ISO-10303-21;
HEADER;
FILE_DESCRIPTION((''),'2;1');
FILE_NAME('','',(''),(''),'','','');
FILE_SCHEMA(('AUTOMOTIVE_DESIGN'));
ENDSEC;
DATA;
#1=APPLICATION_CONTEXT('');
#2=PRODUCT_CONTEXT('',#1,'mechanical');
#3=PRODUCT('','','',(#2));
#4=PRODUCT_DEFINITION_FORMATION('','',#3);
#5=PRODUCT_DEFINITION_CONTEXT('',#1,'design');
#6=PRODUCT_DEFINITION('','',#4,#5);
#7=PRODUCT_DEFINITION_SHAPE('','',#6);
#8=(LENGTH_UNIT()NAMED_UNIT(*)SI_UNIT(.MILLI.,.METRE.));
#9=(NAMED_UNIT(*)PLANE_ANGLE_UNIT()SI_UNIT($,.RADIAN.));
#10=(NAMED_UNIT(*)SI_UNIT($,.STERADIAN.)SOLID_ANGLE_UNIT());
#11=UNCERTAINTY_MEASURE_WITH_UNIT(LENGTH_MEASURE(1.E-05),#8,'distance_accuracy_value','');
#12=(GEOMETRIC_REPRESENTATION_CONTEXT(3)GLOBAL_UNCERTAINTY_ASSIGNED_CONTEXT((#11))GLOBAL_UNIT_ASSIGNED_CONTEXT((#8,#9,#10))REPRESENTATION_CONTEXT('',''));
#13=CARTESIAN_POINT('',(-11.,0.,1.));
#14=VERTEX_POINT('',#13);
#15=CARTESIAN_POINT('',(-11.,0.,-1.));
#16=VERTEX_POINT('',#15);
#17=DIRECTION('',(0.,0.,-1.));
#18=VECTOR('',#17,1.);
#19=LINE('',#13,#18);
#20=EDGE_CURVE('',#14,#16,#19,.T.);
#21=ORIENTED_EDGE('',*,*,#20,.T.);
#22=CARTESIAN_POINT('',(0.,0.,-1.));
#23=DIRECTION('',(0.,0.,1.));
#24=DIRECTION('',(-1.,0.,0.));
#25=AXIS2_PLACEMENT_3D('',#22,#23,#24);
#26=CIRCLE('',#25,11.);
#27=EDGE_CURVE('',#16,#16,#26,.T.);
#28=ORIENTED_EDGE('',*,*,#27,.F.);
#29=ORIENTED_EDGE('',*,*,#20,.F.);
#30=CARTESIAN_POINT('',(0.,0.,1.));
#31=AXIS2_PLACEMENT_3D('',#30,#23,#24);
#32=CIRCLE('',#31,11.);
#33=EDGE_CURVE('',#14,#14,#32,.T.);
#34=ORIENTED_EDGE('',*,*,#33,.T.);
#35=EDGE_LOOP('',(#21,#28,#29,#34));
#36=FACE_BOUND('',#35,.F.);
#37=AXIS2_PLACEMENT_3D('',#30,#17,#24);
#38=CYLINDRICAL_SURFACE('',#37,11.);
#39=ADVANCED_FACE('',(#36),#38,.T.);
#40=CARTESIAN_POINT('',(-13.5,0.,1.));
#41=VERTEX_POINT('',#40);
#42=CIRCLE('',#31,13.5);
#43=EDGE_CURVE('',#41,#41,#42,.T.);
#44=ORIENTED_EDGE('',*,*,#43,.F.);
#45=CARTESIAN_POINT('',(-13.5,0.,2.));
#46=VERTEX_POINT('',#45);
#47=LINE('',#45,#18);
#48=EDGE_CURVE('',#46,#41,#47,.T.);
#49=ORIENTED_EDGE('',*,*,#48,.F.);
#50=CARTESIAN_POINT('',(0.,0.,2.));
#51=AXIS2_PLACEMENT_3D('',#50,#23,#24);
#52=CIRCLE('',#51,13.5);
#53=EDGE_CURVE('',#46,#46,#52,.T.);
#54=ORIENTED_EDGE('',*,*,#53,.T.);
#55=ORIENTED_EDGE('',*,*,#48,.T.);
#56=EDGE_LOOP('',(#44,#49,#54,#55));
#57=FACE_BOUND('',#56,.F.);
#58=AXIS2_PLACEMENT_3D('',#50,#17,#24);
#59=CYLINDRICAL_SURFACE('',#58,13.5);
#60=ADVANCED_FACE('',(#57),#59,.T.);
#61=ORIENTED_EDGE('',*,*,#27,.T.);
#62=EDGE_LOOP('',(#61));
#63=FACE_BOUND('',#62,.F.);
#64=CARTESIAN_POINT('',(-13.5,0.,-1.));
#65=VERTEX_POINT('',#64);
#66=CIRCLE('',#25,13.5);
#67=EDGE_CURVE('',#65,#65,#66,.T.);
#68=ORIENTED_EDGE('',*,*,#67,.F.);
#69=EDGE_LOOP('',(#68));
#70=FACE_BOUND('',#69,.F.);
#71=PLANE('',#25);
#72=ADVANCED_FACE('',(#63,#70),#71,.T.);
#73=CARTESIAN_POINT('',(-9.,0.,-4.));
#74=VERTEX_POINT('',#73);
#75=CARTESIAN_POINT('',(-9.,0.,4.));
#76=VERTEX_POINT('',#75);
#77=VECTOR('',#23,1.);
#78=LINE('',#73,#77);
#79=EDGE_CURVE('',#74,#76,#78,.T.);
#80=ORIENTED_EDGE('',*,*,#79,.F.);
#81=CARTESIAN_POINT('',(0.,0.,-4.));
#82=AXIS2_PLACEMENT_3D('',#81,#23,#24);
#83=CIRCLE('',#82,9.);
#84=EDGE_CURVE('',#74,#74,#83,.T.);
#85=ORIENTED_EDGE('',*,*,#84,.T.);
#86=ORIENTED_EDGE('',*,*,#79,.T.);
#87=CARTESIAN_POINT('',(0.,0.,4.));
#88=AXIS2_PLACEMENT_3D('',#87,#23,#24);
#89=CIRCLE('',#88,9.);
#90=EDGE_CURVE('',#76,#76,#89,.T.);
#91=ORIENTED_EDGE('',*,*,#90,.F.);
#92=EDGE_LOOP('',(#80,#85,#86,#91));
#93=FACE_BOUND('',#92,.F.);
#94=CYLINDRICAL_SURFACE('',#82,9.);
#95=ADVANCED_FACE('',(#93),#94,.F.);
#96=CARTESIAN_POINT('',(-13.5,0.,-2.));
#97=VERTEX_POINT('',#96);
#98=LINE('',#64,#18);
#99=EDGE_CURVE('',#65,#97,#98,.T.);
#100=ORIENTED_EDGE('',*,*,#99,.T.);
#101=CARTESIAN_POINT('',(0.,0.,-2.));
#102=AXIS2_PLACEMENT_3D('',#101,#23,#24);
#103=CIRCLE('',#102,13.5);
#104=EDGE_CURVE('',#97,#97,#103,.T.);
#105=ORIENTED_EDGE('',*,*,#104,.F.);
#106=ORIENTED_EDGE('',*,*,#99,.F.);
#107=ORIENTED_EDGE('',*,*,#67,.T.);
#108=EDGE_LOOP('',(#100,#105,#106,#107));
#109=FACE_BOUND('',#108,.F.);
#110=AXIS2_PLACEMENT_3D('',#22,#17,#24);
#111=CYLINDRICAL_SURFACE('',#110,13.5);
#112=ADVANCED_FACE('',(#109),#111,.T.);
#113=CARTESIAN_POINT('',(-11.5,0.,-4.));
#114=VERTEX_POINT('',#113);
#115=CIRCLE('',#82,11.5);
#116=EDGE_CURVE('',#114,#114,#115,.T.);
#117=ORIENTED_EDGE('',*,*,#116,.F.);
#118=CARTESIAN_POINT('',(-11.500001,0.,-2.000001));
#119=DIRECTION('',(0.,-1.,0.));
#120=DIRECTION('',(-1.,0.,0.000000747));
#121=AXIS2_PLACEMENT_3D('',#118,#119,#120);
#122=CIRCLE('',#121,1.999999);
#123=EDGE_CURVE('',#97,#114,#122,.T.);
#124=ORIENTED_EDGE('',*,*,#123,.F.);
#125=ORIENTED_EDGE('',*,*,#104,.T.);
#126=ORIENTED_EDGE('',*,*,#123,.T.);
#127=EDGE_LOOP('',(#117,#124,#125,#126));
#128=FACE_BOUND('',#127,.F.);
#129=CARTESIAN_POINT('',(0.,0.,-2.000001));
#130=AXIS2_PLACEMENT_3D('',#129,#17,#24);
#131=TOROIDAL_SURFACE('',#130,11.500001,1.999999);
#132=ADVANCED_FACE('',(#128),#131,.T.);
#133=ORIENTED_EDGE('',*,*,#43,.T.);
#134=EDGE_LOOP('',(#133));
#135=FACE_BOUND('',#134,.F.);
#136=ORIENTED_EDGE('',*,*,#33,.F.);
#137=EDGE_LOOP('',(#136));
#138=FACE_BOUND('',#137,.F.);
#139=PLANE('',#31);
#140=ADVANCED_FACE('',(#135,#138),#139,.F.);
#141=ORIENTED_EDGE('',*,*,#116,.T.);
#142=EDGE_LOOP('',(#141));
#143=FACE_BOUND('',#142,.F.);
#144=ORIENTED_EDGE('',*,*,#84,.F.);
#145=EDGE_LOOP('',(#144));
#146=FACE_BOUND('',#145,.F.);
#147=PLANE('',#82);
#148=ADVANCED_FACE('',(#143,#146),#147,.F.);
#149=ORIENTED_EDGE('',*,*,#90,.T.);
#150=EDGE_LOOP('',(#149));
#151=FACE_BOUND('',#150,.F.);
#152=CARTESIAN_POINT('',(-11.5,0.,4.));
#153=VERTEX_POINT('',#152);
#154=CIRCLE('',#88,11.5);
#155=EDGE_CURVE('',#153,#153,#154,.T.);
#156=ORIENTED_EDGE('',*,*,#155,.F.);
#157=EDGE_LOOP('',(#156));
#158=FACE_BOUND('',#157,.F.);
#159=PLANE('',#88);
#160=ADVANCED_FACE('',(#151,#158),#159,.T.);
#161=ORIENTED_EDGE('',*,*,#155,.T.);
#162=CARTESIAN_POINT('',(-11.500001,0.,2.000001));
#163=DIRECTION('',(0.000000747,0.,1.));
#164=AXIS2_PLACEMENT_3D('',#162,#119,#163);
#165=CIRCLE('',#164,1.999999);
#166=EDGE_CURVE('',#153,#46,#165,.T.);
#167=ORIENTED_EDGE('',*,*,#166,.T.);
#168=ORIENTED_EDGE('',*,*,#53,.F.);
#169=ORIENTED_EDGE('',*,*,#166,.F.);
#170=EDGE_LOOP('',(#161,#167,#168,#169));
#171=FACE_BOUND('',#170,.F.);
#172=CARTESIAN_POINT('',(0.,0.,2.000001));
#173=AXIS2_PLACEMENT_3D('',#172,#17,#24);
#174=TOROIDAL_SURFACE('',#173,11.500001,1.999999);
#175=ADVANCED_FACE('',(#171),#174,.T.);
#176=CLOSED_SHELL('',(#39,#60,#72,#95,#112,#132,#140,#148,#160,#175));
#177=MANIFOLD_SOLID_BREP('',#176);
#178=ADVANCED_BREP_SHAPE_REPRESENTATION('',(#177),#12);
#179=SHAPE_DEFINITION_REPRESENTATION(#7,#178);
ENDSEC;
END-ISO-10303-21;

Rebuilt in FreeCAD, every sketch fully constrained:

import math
import FreeCAD as App
import Part
import Sketcher
from FreeCAD import Vector

doc = App.newDocument("Part")
body = doc.addObject("PartDesign::Body", "Body")

# Sketch on XZ plane
sketch1 = body.newObject("Sketcher::SketchObject", "Sketch")
sketch1.AttachmentSupport = (doc.getObject("XZ_Plane"), [""])
sketch1.MapMode = "FlatFace"
sketch1.addGeometry(Part.LineSegment(Vector(-9, -4, 0), Vector(-9, 4, 0)), False)
sketch1.addGeometry(Part.LineSegment(Vector(-9, 4, 0), Vector(-11.5, 4, 0)), False)
sketch1.addGeometry(Part.ArcOfCircle(Part.Circle(Vector(-11.500001, 2.000001, 0), Vector(0, 0, 1), 1.999999), math.radians(89.999957), math.radians(180.000043)), False)
sketch1.addGeometry(Part.LineSegment(Vector(-13.5, 2, 0), Vector(-13.5, 1, 0)), False)
sketch1.addGeometry(Part.LineSegment(Vector(-13.5, 1, 0), Vector(-11, 1, 0)), False)
sketch1.addGeometry(Part.LineSegment(Vector(-11, 1, 0), Vector(-11, -1, 0)), False)
sketch1.addGeometry(Part.LineSegment(Vector(-11, -1, 0), Vector(-13.5, -1, 0)), False)
sketch1.addGeometry(Part.LineSegment(Vector(-13.5, -1, 0), Vector(-13.5, -2, 0)), False)
sketch1.addGeometry(Part.ArcOfCircle(Part.Circle(Vector(-11.500001, -2.000001, 0), Vector(0, 0, 1), 1.999999), math.radians(179.999957), math.radians(270.000043)), False)
sketch1.addGeometry(Part.LineSegment(Vector(-11.5, -4, 0), Vector(-9, -4, 0)), False)
sketch1.addConstraint(Sketcher.Constraint("Coincident", 0, 2, 1, 1))
sketch1.addConstraint(Sketcher.Constraint("Tangent", 1, 2, 2, 1))
sketch1.addConstraint(Sketcher.Constraint("Tangent", 2, 2, 3, 1))
sketch1.addConstraint(Sketcher.Constraint("Coincident", 3, 2, 4, 1))
sketch1.addConstraint(Sketcher.Constraint("Coincident", 4, 2, 5, 1))
sketch1.addConstraint(Sketcher.Constraint("Coincident", 5, 2, 6, 1))
sketch1.addConstraint(Sketcher.Constraint("Coincident", 6, 2, 7, 1))
sketch1.addConstraint(Sketcher.Constraint("Tangent", 7, 2, 8, 1))
sketch1.addConstraint(Sketcher.Constraint("Tangent", 8, 2, 9, 1))
sketch1.addConstraint(Sketcher.Constraint("Coincident", 9, 2, 0, 1))
sketch1.addConstraint(Sketcher.Constraint("Vertical", 0))
sketch1.addConstraint(Sketcher.Constraint("Horizontal", 1))
sketch1.addConstraint(Sketcher.Constraint("Vertical", 3))
sketch1.addConstraint(Sketcher.Constraint("Horizontal", 4))
sketch1.addConstraint(Sketcher.Constraint("Vertical", 5))
sketch1.addConstraint(Sketcher.Constraint("Horizontal", 6))
sketch1.addConstraint(Sketcher.Constraint("Vertical", 7))
sketch1.addConstraint(Sketcher.Constraint("Horizontal", 9))
sketch1.addConstraint(Sketcher.Constraint("Equal", 2, 8))
sketch1.addConstraint(Sketcher.Constraint("Symmetric", 2, 3, 8, 3, -1))
sketch1.addConstraint(Sketcher.Constraint("Equal", 1, 4))
sketch1.addConstraint(Sketcher.Constraint("Equal", 3, 7))
sketch1.addConstraint(Sketcher.Constraint("Radius", 2, 1.999999))
sketch1.addConstraint(Sketcher.Constraint("DistanceY", 0, 1, 0, 2, 8.0))
sketch1.addConstraint(Sketcher.Constraint("DistanceY", 3, 2, 3, 1, 1.0))
sketch1.addConstraint(Sketcher.Constraint("DistanceX", 1, 2, 1, 1, 2.5))
sketch1.addConstraint(Sketcher.Constraint("DistanceX", 0, 2, -1, 1, 9.0))
revolution = body.newObject("PartDesign::Revolution", "Revolution")
revolution.Profile = sketch1
revolution.ReferenceAxis = (sketch1, ["V_Axis"])
revolution.Angle = 360

doc.recompute()
